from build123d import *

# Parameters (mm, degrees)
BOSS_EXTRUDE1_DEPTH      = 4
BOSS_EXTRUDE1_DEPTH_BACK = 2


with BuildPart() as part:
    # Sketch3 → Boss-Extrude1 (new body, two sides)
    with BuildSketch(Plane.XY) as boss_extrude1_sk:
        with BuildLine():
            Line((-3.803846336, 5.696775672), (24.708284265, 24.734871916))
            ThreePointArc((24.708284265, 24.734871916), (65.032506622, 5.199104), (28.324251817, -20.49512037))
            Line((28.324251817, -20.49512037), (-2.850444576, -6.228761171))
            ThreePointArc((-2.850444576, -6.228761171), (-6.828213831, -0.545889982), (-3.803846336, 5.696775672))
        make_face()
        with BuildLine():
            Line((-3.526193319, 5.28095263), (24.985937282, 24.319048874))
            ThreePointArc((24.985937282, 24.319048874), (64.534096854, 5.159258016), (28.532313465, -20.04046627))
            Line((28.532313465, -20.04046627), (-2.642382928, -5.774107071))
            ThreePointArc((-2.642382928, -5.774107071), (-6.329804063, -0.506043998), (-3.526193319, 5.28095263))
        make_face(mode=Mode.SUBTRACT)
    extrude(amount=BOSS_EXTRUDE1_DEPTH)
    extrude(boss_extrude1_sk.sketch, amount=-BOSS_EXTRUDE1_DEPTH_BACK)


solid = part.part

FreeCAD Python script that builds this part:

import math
import FreeCAD as App
import Part
import Sketcher

V = App.Vector

doc = App.newDocument("Part")
params = doc.addObject("Spreadsheet::Sheet", "Params")
for row, (alias, value) in enumerate([
    ("sketch1_radius", "6.85 mm"),
    ("sketch1_radius2", "25.98 mm"),
    ("sketch1_radius3", "25.48 mm"),
    ("pad1_length", "4 mm"),
    ("pad1_length2", "2 mm"),
], start=1):
    params.set(f"A{row}", alias)
    params.set(f"B{row}", "=" + value)
    params.setAlias(f"B{row}", alias)

body = doc.addObject("PartDesign::Body", "Body")

sketch1 = body.newObject("Sketcher::SketchObject", "Sketch")
sketch1.AttachmentSupport = (doc.getObject("XY_Plane"), [""])
sketch1.MapMode = "FlatFace"
sketch1.addGeometry(Part.LineSegment(V(25, 25, 0), V(-4, 6, 0)), False)
sketch1.addGeometry(Part.ArcOfCircle(Part.Circle(V(0, 0, 0), V(0, 0, 1), 7), math.radians(124), math.radians(245)), False)
sketch1.addGeometry(Part.LineSegment(V(-3, -6, 0), V(28, -20, 0)), False)
sketch1.addGeometry(Part.ArcOfCircle(Part.Circle(V(39, 3, 0), V(0, 0, 1), 26), math.radians(-115), math.radians(124)), False)
sketch1.addGeometry(Part.LineSegment(V(-4, 5, 0), V(25, 24, 0)), False)
sketch1.addGeometry(Part.ArcOfCircle(Part.Circle(V(39, 3, 0), V(0, 0, 1), 25), math.radians(-115), math.radians(124)), False)
sketch1.addGeometry(Part.LineSegment(V(29, -20, 0), V(-3, -6, 0)), False)
sketch1.addGeometry(Part.ArcOfCircle(Part.Circle(V(0, 0, 0), V(0, 0, 1), 6), math.radians(124), math.radians(245)), False)
sketch1.addConstraint(Sketcher.Constraint("Tangent", 0, 2, 1, 1))
sketch1.addConstraint(Sketcher.Constraint("Tangent", 1, 2, 2, 1))
sketch1.addConstraint(Sketcher.Constraint("Tangent", 2, 2, 3, 1))
sketch1.addConstraint(Sketcher.Constraint("Tangent", 3, 2, 0, 1))
sketch1.addConstraint(Sketcher.Constraint("Tangent", 4, 2, 5, 2))
sketch1.addConstraint(Sketcher.Constraint("Tangent", 5, 1, 6, 1))
sketch1.addConstraint(Sketcher.Constraint("Tangent", 6, 2, 7, 2))
sketch1.addConstraint(Sketcher.Constraint("Tangent", 7, 1, 4, 1))
sketch1.addConstraint(Sketcher.Constraint("Coincident", 1, 3, -1, 1))
sketch1.addConstraint(Sketcher.Constraint("Coincident", 7, 3, -1, 1))
sketch1.addConstraint(Sketcher.Constraint("Coincident", 5, 3, 3, 3))
sketch1.addConstraint(Sketcher.Constraint("Parallel", 0, 4))
sketch1.addConstraint(Sketcher.Constraint("Radius", 1, 6.85))
sketch1.addConstraint(Sketcher.Constraint("Radius", 3, 25.98))
sketch1.addConstraint(Sketcher.Constraint("Radius", 5, 25.48))
sketch1.addConstraint(Sketcher.Constraint("DistanceX", 0, 2, 1, 2, 0.953402))
sketch1.addConstraint(Sketcher.Constraint("Distance", 0, 34.283971))
sketch1.setExpression("Constraints[12]", "Params.sketch1_radius")
sketch1.setExpression("Constraints[13]", "Params.sketch1_radius2")
sketch1.setExpression("Constraints[14]", "Params.sketch1_radius3")
pad1 = body.newObject("PartDesign::Pad", "Pad")
pad1.Profile = sketch1
pad1.Type = "TwoLengths"
pad1.setExpression("Length", "Params.pad1_length")
pad1.setExpression("Length2", "Params.pad1_length2")

doc.recompute()
